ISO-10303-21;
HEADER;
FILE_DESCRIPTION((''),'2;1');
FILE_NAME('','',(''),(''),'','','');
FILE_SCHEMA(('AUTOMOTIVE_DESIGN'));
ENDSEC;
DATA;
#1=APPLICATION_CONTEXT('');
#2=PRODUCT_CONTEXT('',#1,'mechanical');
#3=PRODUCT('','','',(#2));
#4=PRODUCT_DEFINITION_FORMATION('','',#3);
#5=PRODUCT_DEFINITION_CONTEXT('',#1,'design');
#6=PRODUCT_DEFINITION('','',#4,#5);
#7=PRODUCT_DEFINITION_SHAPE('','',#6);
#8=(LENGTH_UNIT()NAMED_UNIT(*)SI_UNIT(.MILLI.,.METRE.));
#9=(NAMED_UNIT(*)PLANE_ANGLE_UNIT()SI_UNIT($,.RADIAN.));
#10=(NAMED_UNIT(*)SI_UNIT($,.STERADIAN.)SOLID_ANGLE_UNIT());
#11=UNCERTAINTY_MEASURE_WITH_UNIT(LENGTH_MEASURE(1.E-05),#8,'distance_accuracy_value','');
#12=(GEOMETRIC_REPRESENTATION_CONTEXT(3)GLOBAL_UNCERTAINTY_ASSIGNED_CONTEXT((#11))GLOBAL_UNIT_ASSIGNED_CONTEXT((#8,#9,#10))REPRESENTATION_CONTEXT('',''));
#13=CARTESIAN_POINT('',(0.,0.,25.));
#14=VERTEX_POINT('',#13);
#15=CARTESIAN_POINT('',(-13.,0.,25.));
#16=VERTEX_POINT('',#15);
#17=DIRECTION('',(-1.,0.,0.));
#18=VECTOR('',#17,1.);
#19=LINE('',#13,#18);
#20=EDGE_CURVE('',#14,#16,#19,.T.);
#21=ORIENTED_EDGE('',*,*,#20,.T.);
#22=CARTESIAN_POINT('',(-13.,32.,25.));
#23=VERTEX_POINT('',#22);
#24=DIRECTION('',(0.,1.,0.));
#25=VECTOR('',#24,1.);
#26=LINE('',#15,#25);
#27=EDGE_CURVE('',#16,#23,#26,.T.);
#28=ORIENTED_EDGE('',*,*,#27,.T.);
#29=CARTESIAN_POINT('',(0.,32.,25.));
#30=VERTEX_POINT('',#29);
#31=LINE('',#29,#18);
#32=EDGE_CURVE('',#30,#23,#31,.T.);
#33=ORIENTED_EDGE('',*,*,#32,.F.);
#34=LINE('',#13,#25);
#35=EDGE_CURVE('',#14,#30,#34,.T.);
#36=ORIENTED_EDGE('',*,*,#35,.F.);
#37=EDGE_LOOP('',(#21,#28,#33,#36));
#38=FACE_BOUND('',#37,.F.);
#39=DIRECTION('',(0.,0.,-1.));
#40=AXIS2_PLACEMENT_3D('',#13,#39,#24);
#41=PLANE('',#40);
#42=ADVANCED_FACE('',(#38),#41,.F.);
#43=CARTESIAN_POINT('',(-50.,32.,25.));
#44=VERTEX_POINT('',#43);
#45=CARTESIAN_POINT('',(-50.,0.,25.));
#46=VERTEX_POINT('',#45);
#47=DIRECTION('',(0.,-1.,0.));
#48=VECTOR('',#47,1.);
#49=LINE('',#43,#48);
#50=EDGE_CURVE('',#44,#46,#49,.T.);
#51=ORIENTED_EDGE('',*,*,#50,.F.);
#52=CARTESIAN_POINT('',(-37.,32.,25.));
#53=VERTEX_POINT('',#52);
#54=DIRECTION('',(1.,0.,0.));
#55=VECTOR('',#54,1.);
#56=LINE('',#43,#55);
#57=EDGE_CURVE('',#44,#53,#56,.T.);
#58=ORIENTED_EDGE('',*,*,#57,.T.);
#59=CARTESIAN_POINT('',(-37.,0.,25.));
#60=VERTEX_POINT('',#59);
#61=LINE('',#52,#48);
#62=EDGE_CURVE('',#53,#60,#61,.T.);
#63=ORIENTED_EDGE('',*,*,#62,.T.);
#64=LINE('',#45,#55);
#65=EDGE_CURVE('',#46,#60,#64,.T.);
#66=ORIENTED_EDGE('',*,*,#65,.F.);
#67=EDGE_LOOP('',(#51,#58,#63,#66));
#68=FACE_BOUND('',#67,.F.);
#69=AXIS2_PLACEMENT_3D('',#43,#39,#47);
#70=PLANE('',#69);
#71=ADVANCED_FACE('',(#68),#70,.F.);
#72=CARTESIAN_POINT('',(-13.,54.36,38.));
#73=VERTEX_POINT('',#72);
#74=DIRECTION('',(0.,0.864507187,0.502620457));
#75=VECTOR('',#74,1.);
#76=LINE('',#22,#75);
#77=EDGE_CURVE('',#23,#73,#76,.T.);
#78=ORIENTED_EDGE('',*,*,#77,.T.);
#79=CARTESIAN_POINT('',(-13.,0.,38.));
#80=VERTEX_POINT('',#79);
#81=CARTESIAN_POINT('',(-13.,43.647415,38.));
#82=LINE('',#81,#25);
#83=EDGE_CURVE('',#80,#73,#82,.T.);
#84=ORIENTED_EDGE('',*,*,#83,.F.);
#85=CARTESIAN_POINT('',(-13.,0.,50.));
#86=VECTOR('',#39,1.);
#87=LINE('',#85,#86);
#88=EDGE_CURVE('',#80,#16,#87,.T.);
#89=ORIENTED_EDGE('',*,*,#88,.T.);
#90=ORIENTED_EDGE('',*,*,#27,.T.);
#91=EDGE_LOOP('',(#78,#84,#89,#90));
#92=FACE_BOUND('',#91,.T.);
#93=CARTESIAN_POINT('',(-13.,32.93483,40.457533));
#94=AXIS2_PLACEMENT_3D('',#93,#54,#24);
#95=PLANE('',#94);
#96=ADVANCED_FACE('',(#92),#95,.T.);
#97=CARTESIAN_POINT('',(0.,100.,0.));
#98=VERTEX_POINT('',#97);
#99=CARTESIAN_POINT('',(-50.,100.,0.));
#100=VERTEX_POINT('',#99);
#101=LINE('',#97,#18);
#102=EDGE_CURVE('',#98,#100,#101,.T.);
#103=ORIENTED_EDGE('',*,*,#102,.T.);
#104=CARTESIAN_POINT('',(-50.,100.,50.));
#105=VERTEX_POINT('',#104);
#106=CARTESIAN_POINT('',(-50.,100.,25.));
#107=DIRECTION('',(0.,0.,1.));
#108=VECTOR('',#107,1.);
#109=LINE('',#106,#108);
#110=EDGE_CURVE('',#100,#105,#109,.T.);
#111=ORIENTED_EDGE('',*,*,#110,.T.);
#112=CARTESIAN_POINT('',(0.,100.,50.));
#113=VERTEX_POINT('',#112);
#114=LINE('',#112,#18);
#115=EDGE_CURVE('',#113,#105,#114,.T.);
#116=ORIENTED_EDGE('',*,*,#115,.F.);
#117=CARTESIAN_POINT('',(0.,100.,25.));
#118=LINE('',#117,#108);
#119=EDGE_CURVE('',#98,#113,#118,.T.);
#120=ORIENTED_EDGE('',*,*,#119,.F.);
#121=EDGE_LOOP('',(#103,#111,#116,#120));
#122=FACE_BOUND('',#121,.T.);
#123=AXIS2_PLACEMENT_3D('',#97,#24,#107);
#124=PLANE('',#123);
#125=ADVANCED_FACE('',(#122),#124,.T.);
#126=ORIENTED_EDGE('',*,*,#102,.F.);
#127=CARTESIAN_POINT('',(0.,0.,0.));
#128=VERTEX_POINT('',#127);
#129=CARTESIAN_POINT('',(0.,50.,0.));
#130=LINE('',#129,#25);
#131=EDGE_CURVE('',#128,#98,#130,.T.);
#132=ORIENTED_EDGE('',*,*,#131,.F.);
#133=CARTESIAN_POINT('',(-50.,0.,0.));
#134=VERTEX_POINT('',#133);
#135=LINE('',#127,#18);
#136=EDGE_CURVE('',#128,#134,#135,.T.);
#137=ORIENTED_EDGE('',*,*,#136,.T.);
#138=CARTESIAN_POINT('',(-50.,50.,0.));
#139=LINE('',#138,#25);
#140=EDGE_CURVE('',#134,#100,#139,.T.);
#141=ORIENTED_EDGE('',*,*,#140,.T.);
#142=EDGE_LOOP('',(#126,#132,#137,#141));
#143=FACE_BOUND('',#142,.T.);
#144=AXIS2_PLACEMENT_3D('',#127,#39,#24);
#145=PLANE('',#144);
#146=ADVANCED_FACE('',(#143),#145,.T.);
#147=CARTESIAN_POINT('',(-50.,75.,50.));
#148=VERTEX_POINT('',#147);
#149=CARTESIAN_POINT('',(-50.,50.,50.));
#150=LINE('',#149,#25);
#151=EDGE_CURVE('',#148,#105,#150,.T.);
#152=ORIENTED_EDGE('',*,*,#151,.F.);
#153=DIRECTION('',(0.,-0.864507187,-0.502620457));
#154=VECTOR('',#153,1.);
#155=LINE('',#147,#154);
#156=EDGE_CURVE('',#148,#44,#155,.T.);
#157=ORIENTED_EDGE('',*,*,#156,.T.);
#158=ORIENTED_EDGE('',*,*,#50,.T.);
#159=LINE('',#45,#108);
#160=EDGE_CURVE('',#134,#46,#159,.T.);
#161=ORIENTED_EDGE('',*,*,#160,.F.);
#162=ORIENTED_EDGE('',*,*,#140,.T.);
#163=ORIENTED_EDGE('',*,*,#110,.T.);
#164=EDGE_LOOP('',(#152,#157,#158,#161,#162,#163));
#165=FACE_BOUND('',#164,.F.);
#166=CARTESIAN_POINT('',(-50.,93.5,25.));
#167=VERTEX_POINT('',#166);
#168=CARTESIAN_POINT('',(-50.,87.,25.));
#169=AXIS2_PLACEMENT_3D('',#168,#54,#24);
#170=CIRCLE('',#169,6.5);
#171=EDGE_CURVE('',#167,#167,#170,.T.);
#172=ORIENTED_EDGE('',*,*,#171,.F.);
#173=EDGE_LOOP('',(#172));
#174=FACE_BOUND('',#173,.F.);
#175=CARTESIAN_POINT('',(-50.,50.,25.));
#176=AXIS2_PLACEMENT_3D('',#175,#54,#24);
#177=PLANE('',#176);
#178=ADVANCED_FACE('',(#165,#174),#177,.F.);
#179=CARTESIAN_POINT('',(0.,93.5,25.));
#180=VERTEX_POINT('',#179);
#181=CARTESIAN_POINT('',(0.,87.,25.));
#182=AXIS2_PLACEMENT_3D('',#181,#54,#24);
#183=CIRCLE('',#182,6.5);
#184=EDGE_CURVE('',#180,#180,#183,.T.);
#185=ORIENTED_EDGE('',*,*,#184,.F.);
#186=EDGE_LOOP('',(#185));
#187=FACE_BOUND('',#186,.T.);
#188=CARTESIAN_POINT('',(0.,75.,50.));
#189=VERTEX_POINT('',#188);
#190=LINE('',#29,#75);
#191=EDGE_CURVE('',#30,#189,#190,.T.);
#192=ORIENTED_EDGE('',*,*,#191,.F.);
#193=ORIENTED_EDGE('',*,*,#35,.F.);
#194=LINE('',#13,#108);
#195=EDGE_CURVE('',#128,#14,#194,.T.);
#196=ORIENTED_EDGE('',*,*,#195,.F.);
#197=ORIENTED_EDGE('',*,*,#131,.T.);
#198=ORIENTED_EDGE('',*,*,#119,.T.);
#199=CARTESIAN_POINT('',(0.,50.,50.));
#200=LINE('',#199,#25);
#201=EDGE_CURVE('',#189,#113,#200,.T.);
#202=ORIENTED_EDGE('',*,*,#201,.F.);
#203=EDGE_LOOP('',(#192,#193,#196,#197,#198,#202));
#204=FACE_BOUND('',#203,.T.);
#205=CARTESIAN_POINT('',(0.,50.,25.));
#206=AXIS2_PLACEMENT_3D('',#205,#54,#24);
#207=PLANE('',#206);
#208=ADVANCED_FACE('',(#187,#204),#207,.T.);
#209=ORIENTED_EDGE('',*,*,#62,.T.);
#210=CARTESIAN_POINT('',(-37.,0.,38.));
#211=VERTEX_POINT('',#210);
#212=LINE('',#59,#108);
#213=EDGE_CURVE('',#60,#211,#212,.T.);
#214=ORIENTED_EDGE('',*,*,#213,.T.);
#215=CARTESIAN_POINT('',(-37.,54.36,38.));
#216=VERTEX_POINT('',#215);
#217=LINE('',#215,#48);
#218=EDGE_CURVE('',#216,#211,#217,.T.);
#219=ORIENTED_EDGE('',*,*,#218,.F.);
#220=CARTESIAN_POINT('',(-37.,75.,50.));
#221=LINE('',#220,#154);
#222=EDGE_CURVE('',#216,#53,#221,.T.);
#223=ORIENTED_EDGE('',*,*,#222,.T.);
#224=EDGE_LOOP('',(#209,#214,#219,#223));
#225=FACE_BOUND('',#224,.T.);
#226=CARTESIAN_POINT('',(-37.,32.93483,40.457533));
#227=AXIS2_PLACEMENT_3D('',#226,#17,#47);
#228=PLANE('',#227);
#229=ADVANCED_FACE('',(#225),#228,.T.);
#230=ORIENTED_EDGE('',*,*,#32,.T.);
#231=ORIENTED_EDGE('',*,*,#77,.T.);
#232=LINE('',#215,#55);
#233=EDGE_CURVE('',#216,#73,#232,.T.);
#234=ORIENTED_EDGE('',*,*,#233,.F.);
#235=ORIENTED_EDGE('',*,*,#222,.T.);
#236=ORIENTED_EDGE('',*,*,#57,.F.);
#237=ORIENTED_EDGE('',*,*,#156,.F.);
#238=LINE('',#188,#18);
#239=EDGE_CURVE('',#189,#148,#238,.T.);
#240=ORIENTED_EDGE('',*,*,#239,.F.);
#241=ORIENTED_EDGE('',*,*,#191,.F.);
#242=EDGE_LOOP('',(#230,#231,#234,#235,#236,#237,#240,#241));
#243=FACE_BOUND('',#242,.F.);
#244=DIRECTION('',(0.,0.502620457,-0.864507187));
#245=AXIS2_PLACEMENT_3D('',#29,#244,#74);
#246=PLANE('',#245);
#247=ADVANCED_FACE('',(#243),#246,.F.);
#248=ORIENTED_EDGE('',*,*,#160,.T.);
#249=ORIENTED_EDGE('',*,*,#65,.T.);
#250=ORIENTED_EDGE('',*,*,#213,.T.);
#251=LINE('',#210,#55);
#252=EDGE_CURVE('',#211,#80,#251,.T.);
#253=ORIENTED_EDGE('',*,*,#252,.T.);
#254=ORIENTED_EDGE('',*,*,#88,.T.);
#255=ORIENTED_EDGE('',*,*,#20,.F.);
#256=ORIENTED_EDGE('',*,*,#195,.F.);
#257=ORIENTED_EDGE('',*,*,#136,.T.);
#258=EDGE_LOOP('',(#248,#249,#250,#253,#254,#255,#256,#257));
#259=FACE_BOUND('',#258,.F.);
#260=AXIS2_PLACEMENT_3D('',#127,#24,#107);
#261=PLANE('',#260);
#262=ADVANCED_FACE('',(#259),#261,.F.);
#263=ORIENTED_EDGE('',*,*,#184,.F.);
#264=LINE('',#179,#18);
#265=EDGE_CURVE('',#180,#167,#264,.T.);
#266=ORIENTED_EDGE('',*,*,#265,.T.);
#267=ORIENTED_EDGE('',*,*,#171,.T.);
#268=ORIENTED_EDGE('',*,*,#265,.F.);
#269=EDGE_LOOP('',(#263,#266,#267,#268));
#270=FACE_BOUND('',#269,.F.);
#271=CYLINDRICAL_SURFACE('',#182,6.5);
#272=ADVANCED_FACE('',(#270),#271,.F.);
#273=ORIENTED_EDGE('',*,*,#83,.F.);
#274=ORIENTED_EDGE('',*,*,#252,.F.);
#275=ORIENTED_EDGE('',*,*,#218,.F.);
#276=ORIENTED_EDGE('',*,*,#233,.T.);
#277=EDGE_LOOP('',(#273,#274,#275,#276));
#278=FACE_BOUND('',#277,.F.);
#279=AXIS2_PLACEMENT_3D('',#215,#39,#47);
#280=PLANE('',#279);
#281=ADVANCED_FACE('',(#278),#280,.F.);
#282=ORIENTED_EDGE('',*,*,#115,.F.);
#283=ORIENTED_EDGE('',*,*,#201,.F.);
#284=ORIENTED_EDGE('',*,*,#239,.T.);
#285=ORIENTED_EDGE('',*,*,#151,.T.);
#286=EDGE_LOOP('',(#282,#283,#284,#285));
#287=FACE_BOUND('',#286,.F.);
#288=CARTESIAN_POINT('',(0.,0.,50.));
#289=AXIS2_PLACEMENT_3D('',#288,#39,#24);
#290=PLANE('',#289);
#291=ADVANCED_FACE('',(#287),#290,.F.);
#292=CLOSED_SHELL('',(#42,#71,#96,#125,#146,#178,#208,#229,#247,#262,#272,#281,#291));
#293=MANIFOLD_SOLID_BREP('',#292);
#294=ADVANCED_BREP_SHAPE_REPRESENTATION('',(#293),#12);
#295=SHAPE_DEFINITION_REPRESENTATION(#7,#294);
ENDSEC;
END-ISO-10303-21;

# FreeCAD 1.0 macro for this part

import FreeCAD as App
import Part
import Sketcher
from FreeCAD import Vector


def add_polygon(sketch, points):
    """Adds a closed chain of lines whose ends are joined by coincident constraints."""
    first, n = sketch.GeometryCount, len(points)
    for a, b in zip(points, points[1:] + points[:1]):
        sketch.addGeometry(Part.LineSegment(App.Vector(*a, 0), App.Vector(*b, 0)), False)
    for i in range(n):
        sketch.addConstraint(Sketcher.Constraint("Coincident", first + i, 2, first + (i + 1) % n, 1))

doc = App.newDocument("Part")
body = doc.addObject("PartDesign::Body", "Body")

# Sketch on YZ plane
sketch1 = doc.addObject("Sketcher::SketchObject", "Sketch")
body.addObject(sketch1)
sketch1.AttachmentSupport = (doc.YZ_Plane, [""])
sketch1.MapMode = "FlatFace"
add_polygon(sketch1, [(0, 50), (0, 0), (100, 0), (100, 50)])  # lines 0-3
sketch1.addConstraint([
    Sketcher.Constraint("Vertical", 0),
    Sketcher.Constraint("Horizontal", 1),
    Sketcher.Constraint("Vertical", 2),
    Sketcher.Constraint("Horizontal", 3),
    Sketcher.Constraint("Coincident", 0, 2, -1, 1),
    Sketcher.Constraint("DistanceX", 1, 1, 1, 2, 100.0),
    Sketcher.Constraint("DistanceY", 0, 2, 0, 1, 50.0),
])
pad1 = doc.addObject("PartDesign::Pad", "Pad")
body.addObject(pad1)
pad1.Profile = sketch1
pad1.Length = 50
pad1.Reversed = True

# Sketch on YZ plane
sketch2 = doc.addObject("Sketcher::SketchObject", "Sketch001")
body.addObject(sketch2)
sketch2.AttachmentSupport = (doc.YZ_Plane, [""])
sketch2.MapMode = "FlatFace"
sketch2.addGeometry(Part.Circle(Vector(87, 25, 0), Vector(0, 0, 1), 6), False)
sketch2.addConstraint([
    Sketcher.Constraint("Diameter", 0, 13.0),
    Sketcher.Constraint("DistanceX", -1, 1, 0, 3, 87.0),
    Sketcher.Constraint("DistanceY", -1, 1, 0, 3, 25.0),
])
pocket1 = doc.addObject("PartDesign::Pocket", "Pocket")
body.addObject(pocket1)
pocket1.Profile = sketch2
pocket1.Type = "ThroughAll"

# Sketch on YZ plane
sketch3 = doc.addObject("Sketcher::SketchObject", "Sketch002")
body.addObject(sketch3)
sketch3.AttachmentSupport = (doc.YZ_Plane, [""])
sketch3.MapMode = "FlatFace"
add_polygon(sketch3, [(32, 25), (75, 50), (0, 50), (0, 25)])  # lines 0-3
sketch3.addConstraint([
    Sketcher.Constraint("Horizontal", 1),
    Sketcher.Constraint("Vertical", 2),
    Sketcher.Constraint("Horizontal", 3),
    Sketcher.Constraint("PointOnObject", 1, 2, -2),
    Sketcher.Constraint("DistanceX", 1, 2, 1, 1, 75.0),
    Sketcher.Constraint("DistanceX", 3, 1, 3, 2, 32.0),
    Sketcher.Constraint("DistanceY", 2, 2, 2, 1, 25.0),
    Sketcher.Constraint("DistanceY", -1, 1, 0, 2, 50.0),
])
pocket2 = doc.addObject("PartDesign::Pocket", "Pocket001")
body.addObject(pocket2)
pocket2.Profile = sketch3
pocket2.Length = 13

# Sketch on YZ plane
sketch4 = doc.addObject("Sketcher::SketchObject", "Sketch003")
body.addObject(sketch4)
sketch4.AttachmentSupport = (doc.YZ_Plane, [""])
sketch4.MapMode = "FlatFace"
sketch4.AttachmentOffset = App.Placement(Vector(0, 0, -50), App.Rotation())
add_polygon(sketch4, [(32, 25), (0, 25), (0, 50), (75, 50)])  # lines 0-3
sketch4.addConstraint([
    Sketcher.Constraint("Horizontal", 0),
    Sketcher.Constraint("Vertical", 1),
    Sketcher.Constraint("Horizontal", 2),
    Sketcher.Constraint("PointOnObject", 0, 2, -2),
    Sketcher.Constraint("DistanceX", 0, 2, 0, 1, 32.0),
    Sketcher.Constraint("DistanceX", 2, 1, 2, 2, 75.0),
    Sketcher.Constraint("DistanceY", 1, 1, 1, 2, 25.0),
    Sketcher.Constraint("DistanceY", -1, 1, 0, 2, 25.0),
])
pocket3 = doc.addObject("PartDesign::Pocket", "Pocket002")
body.addObject(pocket3)
pocket3.Profile = sketch4
pocket3.Length = 13
pocket3.Reversed = True

# Sketch on YZ plane
sketch5 = doc.addObject("Sketcher::SketchObject", "Sketch004")
body.addObject(sketch5)
sketch5.AttachmentSupport = (doc.YZ_Plane, [""])
sketch5.MapMode = "FlatFace"
sketch5.AttachmentOffset = App.Placement(Vector(0, 0, -37), App.Rotation())
add_polygon(sketch5, [(54, 38), (0, 38), (0, 50), (75, 50)])  # lines 0-3
sketch5.addConstraint([
    Sketcher.Constraint("Horizontal", 0),
    Sketcher.Constraint("Vertical", 1),
    Sketcher.Constraint("Horizontal", 2),
    Sketcher.Constraint("PointOnObject", 0, 2, -2),
    Sketcher.Constraint("DistanceX", 2, 1, 2, 2, 75.0),
    Sketcher.Constraint("DistanceY", 1, 1, 1, 2, 12.0),
    Sketcher.Constraint("DistanceY", -1, 1, 0, 2, 38.0),
    Sketcher.Constraint("DistanceX", 0, 2, 0, 1, 54.36),
])
pocket4 = doc.addObject("PartDesign::Pocket", "Pocket003")
body.addObject(pocket4)
pocket4.Profile = sketch5
pocket4.Length = 25
pocket4.Reversed = True

doc.recompute()
